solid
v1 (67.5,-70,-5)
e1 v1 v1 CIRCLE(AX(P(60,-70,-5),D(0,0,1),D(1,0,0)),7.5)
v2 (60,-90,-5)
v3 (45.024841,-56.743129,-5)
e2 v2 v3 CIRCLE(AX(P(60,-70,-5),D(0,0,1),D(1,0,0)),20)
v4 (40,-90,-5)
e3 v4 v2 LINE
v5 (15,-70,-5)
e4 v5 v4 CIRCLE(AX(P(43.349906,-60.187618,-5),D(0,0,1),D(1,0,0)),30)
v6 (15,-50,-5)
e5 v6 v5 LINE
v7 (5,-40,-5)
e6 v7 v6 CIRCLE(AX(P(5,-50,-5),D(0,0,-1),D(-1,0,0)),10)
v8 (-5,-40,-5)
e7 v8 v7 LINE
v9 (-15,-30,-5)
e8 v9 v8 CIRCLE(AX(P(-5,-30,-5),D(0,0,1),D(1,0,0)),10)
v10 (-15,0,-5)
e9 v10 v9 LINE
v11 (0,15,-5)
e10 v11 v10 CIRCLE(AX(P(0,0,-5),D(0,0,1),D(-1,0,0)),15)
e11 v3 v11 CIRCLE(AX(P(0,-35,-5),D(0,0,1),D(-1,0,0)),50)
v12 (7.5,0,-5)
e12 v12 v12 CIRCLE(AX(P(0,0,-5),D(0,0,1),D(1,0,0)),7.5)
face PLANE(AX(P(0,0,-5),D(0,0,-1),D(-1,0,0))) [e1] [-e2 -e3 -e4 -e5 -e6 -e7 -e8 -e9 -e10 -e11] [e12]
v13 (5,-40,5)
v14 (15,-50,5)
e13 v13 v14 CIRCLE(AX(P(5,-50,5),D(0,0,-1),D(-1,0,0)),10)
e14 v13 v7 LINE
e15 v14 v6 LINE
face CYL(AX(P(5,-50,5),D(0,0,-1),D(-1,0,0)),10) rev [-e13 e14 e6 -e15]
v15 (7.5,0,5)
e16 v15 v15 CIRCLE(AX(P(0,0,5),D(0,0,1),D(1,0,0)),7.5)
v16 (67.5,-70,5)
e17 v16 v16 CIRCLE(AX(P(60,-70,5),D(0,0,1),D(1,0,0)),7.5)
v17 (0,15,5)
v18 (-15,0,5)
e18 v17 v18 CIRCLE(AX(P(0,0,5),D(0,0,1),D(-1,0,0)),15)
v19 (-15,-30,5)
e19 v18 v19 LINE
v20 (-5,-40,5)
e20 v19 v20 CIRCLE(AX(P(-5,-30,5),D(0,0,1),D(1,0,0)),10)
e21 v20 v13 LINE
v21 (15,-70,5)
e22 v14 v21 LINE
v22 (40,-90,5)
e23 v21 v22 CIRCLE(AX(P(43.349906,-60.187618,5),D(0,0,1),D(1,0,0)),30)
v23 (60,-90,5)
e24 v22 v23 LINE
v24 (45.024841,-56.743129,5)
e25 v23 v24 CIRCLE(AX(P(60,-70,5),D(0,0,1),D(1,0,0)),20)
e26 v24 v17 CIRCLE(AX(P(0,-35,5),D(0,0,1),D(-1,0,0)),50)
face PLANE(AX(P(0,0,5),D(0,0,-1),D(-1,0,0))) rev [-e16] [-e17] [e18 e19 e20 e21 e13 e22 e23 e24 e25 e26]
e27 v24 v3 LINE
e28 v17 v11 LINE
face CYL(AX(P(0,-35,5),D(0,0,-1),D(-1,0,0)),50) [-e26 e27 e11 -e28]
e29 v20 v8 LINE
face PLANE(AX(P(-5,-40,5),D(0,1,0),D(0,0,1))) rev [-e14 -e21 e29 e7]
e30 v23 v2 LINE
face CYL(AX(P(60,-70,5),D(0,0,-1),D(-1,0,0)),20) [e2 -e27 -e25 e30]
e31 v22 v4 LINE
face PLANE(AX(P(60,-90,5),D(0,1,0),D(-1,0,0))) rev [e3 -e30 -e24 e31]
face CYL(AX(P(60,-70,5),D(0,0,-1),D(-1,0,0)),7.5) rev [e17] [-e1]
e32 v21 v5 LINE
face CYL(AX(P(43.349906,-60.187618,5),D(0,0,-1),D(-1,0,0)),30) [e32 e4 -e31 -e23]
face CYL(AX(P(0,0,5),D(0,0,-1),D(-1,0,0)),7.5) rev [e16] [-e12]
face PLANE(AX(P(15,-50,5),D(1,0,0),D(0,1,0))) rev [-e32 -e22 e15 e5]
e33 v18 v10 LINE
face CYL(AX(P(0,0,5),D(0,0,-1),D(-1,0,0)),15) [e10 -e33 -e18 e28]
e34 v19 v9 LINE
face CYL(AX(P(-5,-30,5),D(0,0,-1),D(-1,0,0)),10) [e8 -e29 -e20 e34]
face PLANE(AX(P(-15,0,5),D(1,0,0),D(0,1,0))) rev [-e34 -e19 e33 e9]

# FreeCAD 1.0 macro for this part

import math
import FreeCAD as App
import Part
import Sketcher
Q = App.Units.Quantity

doc = App.newDocument("Part")
body = doc.addObject("PartDesign::Body", "Body")

sketch1 = doc.addObject("Sketcher::SketchObject", "Sketch")
body.addObject(sketch1)
sketch1.AttachmentSupport = (doc.XY_Plane, [""])
sketch1.MapMode = "FlatFace"
sketch1.addGeometry(Part.LineSegment(App.Vector(-15, 0, 0), App.Vector(-15, -30, 0)), False)
sketch1.addGeometry(Part.ArcOfCircle(Part.Circle(App.Vector(-5, -30, 0), App.Vector(0, 0, 1), 10), math.radians(180), math.radians(270)), False)
sketch1.addGeometry(Part.LineSegment(App.Vector(-5, -40, 0), App.Vector(5, -40, 0)), False)
sketch1.addGeometry(Part.ArcOfCircle(Part.Circle(App.Vector(5, -50, 0), App.Vector(0, 0, 1), 10), math.radians(0), math.radians(90)), False)
sketch1.addGeometry(Part.LineSegment(App.Vector(15, -50, 0), App.Vector(15, -70, 0)), False)
sketch1.addGeometry(Part.ArcOfCircle(Part.Circle(App.Vector(43, -60, 0), App.Vector(0, 0, 1), 30), math.radians(-161), math.radians(-96)), False)
sketch1.addGeometry(Part.LineSegment(App.Vector(40, -90, 0), App.Vector(60, -90, 0)), False)
sketch1.addGeometry(Part.ArcOfCircle(Part.Circle(App.Vector(60, -70, 0), App.Vector(0, 0, 1), 20), math.radians(-90), math.radians(138)), False)
sketch1.addGeometry(Part.ArcOfCircle(Part.Circle(App.Vector(0, -35, 0), App.Vector(0, 0, 1), 50), math.radians(-26), math.radians(90)), False)
sketch1.addGeometry(Part.ArcOfCircle(Part.Circle(App.Vector(0, 0, 0), App.Vector(0, 0, 1), 15), math.radians(90), math.radians(180)), False)
sketch1.addGeometry(Part.Circle(App.Vector(60, -70, 0), App.Vector(0, 0, 1), 8), False)
sketch1.addGeometry(Part.Circle(App.Vector(0, 0, 0), App.Vector(0, 0, 1), 8), False)
sketch1.addConstraint(Sketcher.Constraint("Tangent", 0, 2, 1, 1))
sketch1.addConstraint(Sketcher.Constraint("Tangent", 1, 2, 2, 1))
sketch1.addConstraint(Sketcher.Constraint("Tangent", 2, 2, 3, 2))
sketch1.addConstraint(Sketcher.Constraint("Tangent", 3, 1, 4, 1))
sketch1.addConstraint(Sketcher.Constraint("Coincident", 4, 2, 5, 1))
sketch1.addConstraint(Sketcher.Constraint("Coincident", 5, 2, 6, 1))
sketch1.addConstraint(Sketcher.Constraint("Tangent", 6, 2, 7, 1))
sketch1.addConstraint(Sketcher.Constraint("Coincident", 7, 2, 8, 1))
sketch1.addConstraint(Sketcher.Constraint("Tangent", 8, 2, 9, 1))
sketch1.addConstraint(Sketcher.Constraint("Tangent", 9, 2, 0, 1))
sketch1.addConstraint(Sketcher.Constraint("Vertical", 0))
sketch1.addConstraint(Sketcher.Constraint("Horizontal", 2))
sketch1.addConstraint(Sketcher.Constraint("Vertical", 4))
sketch1.addConstraint(Sketcher.Constraint("Horizontal", 6))
sketch1.addConstraint(Sketcher.Constraint("Coincident", 9, 3, -1, 1))
sketch1.addConstraint(Sketcher.Constraint("Coincident", 11, 3, -1, 1))
sketch1.addConstraint(Sketcher.Constraint("Coincident", 10, 3, 7, 3))
sketch1.addConstraint(Sketcher.Constraint("Equal", 1, 3))
sketch1.addConstraint(Sketcher.Constraint("Equal", 10, 11))
sketch1.addConstraint(Sketcher.Constraint("PointOnObject", 8, 3, -2))
sketch1.addConstraint(Sketcher.Constraint("Horizontal", 10, 3, 4, 2))
sketch1.addConstraint(Sketcher.Constraint("Equal", 6, 4))
sketch1.addConstraint(Sketcher.Constraint("Diameter", 10, Q("15 mm")))
sketch1.addConstraint(Sketcher.Constraint("Radius", 1, Q("10 mm")))
sketch1.addConstraint(Sketcher.Constraint("Radius", 5, Q("30 mm")))
sketch1.addConstraint(Sketcher.Constraint("Radius", 7, Q("20 mm")))
sketch1.addConstraint(Sketcher.Constraint("Radius", 8, Q("50 mm")))
sketch1.addConstraint(Sketcher.Constraint("Radius", 9, Q("15 mm")))
sketch1.addConstraint(Sketcher.Constraint("DistanceX", 2, 1, 2, 2, Q("10 mm")))
sketch1.addConstraint(Sketcher.Constraint("DistanceX", 6, 1, 6, 2, Q("20 mm")))
sketch1.addConstraint(Sketcher.Constraint("DistanceY", 0, 2, 0, 1, Q("30 mm")))
sketch1.addConstraint(Sketcher.Constraint("DistanceX", -1, 1, 7, 3, Q("60 mm")))
pad1 = doc.addObject("PartDesign::Pad", "Pad")
body.addObject(pad1)
pad1.Profile = sketch1
pad1.Length = 10
pad1.Midplane = True

doc.recompute()
